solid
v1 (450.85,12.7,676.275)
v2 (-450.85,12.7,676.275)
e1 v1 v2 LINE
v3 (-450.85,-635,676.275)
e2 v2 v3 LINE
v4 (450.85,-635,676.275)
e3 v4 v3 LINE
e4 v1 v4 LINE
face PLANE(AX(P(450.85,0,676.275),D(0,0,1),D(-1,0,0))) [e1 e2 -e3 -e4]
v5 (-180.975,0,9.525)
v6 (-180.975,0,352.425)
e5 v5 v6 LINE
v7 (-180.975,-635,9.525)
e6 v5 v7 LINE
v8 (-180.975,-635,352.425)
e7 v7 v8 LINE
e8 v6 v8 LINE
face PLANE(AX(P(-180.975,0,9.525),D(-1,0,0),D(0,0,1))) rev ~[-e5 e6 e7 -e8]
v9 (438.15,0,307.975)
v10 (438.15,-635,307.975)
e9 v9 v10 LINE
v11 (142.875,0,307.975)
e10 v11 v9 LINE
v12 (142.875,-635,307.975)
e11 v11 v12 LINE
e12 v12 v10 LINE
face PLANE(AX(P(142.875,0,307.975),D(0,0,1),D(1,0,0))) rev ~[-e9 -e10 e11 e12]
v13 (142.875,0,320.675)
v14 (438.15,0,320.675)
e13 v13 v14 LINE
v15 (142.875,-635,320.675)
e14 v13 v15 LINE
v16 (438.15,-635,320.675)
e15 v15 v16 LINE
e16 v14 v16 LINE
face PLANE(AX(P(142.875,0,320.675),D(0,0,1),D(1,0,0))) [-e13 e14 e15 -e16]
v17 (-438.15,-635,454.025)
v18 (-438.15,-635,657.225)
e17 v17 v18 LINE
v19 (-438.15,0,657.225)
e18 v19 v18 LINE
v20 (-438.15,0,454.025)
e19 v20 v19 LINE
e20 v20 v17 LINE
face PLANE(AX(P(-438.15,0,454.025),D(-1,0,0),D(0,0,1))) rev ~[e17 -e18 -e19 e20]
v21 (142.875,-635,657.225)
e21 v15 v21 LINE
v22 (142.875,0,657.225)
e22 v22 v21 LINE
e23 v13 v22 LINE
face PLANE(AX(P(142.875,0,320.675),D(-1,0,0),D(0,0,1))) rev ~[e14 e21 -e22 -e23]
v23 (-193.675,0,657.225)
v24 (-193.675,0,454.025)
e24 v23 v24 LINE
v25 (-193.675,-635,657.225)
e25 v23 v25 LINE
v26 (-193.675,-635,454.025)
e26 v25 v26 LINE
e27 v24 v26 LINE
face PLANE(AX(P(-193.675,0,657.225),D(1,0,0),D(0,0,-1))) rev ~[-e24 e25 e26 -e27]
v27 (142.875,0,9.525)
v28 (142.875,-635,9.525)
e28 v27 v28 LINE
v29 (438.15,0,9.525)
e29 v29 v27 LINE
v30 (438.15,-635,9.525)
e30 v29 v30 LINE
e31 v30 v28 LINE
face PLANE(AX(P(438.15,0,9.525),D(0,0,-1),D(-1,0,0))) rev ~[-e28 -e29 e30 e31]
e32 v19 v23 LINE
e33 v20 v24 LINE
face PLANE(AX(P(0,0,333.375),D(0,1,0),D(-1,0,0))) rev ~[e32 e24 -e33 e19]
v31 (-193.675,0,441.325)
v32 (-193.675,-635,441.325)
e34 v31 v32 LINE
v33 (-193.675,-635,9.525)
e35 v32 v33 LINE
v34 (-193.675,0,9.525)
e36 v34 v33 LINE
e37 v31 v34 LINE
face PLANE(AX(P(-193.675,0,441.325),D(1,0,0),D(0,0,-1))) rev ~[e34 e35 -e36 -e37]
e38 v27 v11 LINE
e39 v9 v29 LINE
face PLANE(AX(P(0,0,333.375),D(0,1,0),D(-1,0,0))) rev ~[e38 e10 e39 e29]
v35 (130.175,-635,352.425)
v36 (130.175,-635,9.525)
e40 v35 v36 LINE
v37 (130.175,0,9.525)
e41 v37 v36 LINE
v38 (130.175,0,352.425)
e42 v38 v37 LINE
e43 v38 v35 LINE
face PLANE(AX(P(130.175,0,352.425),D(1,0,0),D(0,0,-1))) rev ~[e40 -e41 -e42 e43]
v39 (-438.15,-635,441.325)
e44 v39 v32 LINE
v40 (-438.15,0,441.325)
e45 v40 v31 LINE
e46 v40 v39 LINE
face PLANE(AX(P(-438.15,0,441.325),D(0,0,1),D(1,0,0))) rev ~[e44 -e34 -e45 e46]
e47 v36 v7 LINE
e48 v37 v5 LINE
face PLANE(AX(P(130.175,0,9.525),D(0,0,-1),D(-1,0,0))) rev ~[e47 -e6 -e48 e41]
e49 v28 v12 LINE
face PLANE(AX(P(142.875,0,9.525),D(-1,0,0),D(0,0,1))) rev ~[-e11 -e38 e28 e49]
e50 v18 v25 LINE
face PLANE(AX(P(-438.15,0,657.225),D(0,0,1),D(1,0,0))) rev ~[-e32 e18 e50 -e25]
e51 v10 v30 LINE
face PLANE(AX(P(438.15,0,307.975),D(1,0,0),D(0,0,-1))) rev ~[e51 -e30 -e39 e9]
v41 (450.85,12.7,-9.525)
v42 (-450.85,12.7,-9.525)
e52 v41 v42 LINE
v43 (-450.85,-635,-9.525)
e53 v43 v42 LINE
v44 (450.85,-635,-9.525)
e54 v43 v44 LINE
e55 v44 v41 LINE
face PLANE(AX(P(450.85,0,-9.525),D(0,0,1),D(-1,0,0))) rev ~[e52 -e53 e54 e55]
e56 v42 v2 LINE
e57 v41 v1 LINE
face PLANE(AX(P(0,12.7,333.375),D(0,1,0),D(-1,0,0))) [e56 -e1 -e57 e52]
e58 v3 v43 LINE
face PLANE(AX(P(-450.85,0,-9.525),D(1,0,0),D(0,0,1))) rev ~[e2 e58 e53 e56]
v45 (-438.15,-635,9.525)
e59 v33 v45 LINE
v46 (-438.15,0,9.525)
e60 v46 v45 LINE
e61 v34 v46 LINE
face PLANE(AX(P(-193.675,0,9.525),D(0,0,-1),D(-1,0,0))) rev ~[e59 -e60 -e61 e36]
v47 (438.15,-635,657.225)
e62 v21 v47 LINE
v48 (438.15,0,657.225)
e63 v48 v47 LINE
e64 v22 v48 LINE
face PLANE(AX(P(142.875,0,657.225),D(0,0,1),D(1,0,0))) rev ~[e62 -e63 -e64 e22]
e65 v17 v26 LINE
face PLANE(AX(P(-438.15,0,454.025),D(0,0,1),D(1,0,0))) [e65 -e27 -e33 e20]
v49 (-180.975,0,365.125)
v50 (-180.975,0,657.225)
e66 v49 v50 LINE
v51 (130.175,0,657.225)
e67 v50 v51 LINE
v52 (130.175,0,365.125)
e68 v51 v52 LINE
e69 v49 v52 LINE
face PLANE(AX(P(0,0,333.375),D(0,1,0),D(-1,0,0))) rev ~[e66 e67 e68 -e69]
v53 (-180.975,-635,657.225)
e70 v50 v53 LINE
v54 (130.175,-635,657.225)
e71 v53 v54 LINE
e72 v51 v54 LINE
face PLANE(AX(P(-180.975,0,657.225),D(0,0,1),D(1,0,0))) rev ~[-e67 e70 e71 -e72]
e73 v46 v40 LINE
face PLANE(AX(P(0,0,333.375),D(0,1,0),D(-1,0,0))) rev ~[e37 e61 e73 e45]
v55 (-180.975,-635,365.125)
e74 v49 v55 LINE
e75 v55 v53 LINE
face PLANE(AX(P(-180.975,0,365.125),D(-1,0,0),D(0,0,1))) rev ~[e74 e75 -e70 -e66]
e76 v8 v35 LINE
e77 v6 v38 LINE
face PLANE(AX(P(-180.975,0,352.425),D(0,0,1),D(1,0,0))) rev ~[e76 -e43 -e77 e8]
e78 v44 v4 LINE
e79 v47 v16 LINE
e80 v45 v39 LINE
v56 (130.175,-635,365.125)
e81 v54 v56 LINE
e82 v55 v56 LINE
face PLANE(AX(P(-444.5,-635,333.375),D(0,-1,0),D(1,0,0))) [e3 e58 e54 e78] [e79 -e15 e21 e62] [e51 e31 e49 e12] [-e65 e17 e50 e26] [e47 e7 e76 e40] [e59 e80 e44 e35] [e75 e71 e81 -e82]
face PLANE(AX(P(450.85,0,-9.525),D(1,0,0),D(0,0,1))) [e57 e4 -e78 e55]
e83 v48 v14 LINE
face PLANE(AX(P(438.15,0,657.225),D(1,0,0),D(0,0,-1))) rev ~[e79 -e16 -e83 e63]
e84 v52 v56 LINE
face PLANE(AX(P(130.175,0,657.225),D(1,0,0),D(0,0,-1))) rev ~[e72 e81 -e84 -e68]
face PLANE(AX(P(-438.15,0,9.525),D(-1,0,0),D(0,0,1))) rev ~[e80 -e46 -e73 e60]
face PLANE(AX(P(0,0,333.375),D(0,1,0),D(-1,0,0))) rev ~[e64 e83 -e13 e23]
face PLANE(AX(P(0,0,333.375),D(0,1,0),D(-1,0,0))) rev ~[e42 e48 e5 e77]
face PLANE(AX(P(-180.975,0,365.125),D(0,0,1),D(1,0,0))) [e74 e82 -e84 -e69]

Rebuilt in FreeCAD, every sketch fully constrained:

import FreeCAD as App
import Part
import Sketcher
from FreeCAD import Vector
Q = App.Units.Quantity


def add_polygon(sketch, points):
    """Adds a closed chain of lines whose ends are joined by coincident constraints."""
    first, n = sketch.GeometryCount, len(points)
    for a, b in zip(points, points[1:] + points[:1]):
        sketch.addGeometry(Part.LineSegment(App.Vector(*a, 0), App.Vector(*b, 0)), False)
    for i in range(n):
        sketch.addConstraint(Sketcher.Constraint("Coincident", first + i, 2, first + (i + 1) % n, 1))

doc = App.newDocument("Part")
body = doc.addObject("PartDesign::Body", "Body")

sketch1 = body.newObject("Sketcher::SketchObject", "Sketch")
sketch1.AttachmentSupport = (doc.getObject("XZ_Plane"), [""])
sketch1.MapMode = "FlatFace"
add_polygon(sketch1, [(450.85, 676.275), (-450.85, 676.275), (-450.85, -9.525), (450.85, -9.525)])
add_polygon(sketch1, [(-438.15, 9.525), (-438.15, 441.325), (-193.675, 441.325), (-193.675, 9.525)])
add_polygon(sketch1, [(-180.975, 9.525), (-180.975, 352.425), (130.175, 352.425), (130.175, 9.525)])
add_polygon(sketch1, [(142.875, 9.525), (142.875, 307.975), (438.15, 307.975), (438.15, 9.525)])
add_polygon(sketch1, [(438.15, 320.675), (142.875, 320.675), (142.875, 657.225), (438.15, 657.225)])
add_polygon(sketch1, [(130.175, 365.125), (-180.975, 365.125), (-180.975, 657.225), (130.175, 657.225)])
add_polygon(sketch1, [(-438.15, 454.025), (-438.15, 657.225), (-193.675, 657.225), (-193.675, 454.025)])
sketch1.addConstraint([
    Sketcher.Constraint("Horizontal", 0),
    Sketcher.Constraint("Vertical", 1),
    Sketcher.Constraint("Horizontal", 2),
    Sketcher.Constraint("Vertical", 3),
    Sketcher.Constraint("Vertical", 4),
    Sketcher.Constraint("Horizontal", 5),
    Sketcher.Constraint("Vertical", 6),
    Sketcher.Constraint("Horizontal", 7),
    Sketcher.Constraint("Vertical", 8),
    Sketcher.Constraint("Horizontal", 9),
    Sketcher.Constraint("Vertical", 10),
    Sketcher.Constraint("Horizontal", 11),
    Sketcher.Constraint("Vertical", 12),
    Sketcher.Constraint("Horizontal", 13),
    Sketcher.Constraint("Vertical", 14),
    Sketcher.Constraint("Horizontal", 15),
    Sketcher.Constraint("Horizontal", 16),
    Sketcher.Constraint("Vertical", 17),
    Sketcher.Constraint("Horizontal", 18),
    Sketcher.Constraint("Vertical", 19),
    Sketcher.Constraint("Horizontal", 20),
    Sketcher.Constraint("Vertical", 21),
    Sketcher.Constraint("Horizontal", 22),
    Sketcher.Constraint("Vertical", 23),
    Sketcher.Constraint("Vertical", 24),
    Sketcher.Constraint("Horizontal", 25),
    Sketcher.Constraint("Vertical", 26),
    Sketcher.Constraint("Horizontal", 27),
    Sketcher.Constraint("Symmetric", 7, 2, 14, 2, -2),
    Sketcher.Constraint("Symmetric", 18, 2, 24, 2, -2),
    Sketcher.Constraint("Horizontal", 7, 2, 10, 2),
    Sketcher.Constraint("Horizontal", 18, 2, 21, 2),
    Sketcher.Constraint("Vertical", 15, 2, 16, 2),
    Sketcher.Constraint("Vertical", 14, 2, 18, 2),
    Sketcher.Constraint("Vertical", 11, 2, 20, 2),
    Sketcher.Constraint("Vertical", 10, 2, 22, 2),
    Sketcher.Constraint("Vertical", 6, 2, 25, 2),
    Sketcher.Constraint("DistanceY", 1, 2, 1, 1, Q("27 in")),
    Sketcher.Constraint("DistanceY", 4, 1, 4, 2, Q("17 in")),
    Sketcher.Constraint("DistanceY", 24, 1, 24, 2, Q("8 in")),
    Sketcher.Constraint("DistanceX", 0, 2, 0, 1, Q("35.5 in")),
    Sketcher.Constraint("DistanceY", 8, 1, 8, 2, Q("13.5 in")),
    Sketcher.Constraint("DistanceY", 21, 1, 21, 2, Q("11.5 in")),
    Sketcher.Constraint("DistanceX", 4, 2, 3, 2, Q("35 in")),
    Sketcher.Constraint("DistanceY", 9, 2, 17, 2, Q("12 in")),
    Sketcher.Constraint("DistanceX", 9, 1, 9, 2, Q("12.25 in")),
    Sketcher.Constraint("DistanceY", 12, 1, 12, 2, Q("11.75 in")),
    Sketcher.Constraint("DistanceY", 17, 1, 17, 2, Q("13.25 in")),
    Sketcher.Constraint("DistanceX", 5, 2, 8, 2, Q("0.5 in")),
    Sketcher.Constraint("DistanceX", 9, 2, 12, 2, Q("0.5 in")),
    Sketcher.Constraint("DistanceX", 13, 2, 2, 2, Q("0.5 in")),
    Sketcher.Constraint("DistanceY", 2, 2, 13, 2, Q("12.5 in")),
    Sketcher.Constraint("DistanceX", 5, 1, 5, 2, Q("9.625 in")),
    Sketcher.Constraint("DistanceY", -1, 1, 0, 2, Q("26.625 in")),
])
pad1 = body.newObject("PartDesign::Pad", "Pad")
pad1.Profile = sketch1
pad1.Length = Q("25 in")

sketch2 = body.newObject("Sketcher::SketchObject", "Sketch001")
sketch2.AttachmentSupport = (doc.getObject("XZ_Plane"), [""])
sketch2.MapMode = "FlatFace"
add_polygon(sketch2, [(450.85, 676.275), (450.85, -9.525), (-450.85, -9.525), (-450.85, 676.275)])
sketch2.addConstraint([
    Sketcher.Constraint("Vertical", 0),
    Sketcher.Constraint("Horizontal", 1),
    Sketcher.Constraint("Vertical", 2),
    Sketcher.Constraint("Horizontal", 3),
    Sketcher.Constraint("DistanceY", 0, 2, 0, 1, Q("27 in")),
    Sketcher.Constraint("DistanceX", 1, 2, 1, 1, Q("35.5 in")),
    Sketcher.Constraint("DistanceX", -1, 1, 0, 2, Q("17.75 in")),
    Sketcher.Constraint("DistanceY", 0, 2, -1, 1, Q("0.375 in")),
])
pad2 = body.newObject("PartDesign::Pad", "Pad001")
pad2.Profile = sketch2
pad2.Length = Q("0.5 in")
pad2.Reversed = True

doc.recompute()
